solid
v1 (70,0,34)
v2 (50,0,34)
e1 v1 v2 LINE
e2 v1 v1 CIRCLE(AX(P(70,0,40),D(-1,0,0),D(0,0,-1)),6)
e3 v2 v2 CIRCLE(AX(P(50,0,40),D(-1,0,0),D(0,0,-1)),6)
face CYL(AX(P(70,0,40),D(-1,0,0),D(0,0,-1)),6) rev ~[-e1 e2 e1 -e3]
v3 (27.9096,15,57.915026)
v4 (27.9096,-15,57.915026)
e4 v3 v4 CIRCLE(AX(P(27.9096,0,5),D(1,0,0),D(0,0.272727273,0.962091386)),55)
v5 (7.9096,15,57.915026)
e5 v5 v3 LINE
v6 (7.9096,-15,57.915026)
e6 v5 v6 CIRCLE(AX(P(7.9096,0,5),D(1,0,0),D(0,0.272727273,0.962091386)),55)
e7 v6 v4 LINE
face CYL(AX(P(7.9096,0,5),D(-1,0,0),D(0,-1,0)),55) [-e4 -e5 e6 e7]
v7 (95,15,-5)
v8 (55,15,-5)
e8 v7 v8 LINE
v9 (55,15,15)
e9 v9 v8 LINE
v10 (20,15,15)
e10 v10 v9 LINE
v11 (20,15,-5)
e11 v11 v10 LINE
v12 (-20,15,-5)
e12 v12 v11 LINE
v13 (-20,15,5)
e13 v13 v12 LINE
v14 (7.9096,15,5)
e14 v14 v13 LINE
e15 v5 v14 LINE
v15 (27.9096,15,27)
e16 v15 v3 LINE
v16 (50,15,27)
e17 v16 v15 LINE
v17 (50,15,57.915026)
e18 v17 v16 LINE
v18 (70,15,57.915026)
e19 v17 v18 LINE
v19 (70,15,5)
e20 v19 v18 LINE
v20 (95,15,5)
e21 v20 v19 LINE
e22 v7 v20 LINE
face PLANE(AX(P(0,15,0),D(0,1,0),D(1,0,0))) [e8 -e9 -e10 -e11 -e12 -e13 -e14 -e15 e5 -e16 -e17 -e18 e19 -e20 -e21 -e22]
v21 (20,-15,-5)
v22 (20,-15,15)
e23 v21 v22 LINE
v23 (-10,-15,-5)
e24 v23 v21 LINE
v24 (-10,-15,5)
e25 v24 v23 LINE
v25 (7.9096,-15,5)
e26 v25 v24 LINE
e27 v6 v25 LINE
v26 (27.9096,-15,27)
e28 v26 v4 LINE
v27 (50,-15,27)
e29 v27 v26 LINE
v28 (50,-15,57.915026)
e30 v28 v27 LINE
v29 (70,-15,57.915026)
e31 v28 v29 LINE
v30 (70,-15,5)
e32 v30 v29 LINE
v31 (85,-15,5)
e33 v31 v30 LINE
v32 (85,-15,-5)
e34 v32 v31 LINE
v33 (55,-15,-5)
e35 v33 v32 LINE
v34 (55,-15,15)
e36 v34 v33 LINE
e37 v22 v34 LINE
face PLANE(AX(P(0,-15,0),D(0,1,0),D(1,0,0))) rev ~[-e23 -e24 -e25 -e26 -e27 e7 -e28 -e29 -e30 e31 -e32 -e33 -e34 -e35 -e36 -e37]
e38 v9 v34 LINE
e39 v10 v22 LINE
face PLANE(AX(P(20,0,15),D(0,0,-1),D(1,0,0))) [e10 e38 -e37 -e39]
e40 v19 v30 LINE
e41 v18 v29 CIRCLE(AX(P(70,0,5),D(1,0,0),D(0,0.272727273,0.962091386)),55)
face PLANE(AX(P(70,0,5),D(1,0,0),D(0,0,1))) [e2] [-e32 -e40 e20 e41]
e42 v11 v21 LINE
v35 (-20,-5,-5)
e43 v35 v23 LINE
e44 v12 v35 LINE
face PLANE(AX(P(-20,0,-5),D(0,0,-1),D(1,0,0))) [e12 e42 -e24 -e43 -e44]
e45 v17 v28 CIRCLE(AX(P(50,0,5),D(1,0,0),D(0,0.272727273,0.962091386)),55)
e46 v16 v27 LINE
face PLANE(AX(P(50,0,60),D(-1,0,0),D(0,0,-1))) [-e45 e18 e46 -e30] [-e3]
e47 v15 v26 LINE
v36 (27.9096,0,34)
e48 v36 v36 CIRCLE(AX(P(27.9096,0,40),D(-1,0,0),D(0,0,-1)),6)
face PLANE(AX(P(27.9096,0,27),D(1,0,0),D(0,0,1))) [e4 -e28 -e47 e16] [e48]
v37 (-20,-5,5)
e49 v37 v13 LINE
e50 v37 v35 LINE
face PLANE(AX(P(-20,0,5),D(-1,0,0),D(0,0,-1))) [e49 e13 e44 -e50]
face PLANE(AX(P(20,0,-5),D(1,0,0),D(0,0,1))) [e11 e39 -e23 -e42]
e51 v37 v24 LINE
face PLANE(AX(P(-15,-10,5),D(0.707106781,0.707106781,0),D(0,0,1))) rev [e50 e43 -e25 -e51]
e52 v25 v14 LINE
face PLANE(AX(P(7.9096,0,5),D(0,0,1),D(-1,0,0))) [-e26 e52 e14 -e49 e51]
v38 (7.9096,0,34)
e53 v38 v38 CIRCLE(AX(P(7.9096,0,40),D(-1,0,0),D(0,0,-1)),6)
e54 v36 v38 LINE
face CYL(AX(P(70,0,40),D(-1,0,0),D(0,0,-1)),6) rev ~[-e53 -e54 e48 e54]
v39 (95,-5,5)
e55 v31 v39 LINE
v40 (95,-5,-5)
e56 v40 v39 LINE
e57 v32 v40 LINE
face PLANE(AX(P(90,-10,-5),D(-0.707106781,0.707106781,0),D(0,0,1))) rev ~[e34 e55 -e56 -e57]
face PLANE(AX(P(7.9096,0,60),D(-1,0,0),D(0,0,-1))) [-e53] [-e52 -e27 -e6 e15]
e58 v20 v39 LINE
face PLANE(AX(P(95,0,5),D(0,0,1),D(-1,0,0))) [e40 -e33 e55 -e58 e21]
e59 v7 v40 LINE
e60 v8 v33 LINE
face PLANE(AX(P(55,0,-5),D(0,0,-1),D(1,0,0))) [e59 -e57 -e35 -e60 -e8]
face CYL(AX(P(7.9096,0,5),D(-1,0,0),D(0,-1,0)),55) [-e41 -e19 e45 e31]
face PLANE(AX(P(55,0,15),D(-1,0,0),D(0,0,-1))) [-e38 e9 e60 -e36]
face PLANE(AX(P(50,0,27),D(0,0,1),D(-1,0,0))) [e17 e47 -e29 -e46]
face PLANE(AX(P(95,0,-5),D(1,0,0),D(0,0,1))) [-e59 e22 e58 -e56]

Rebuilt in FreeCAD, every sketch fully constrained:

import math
import FreeCAD as App
import Part
import Sketcher
Q = App.Units.Quantity


def edges_at(feature, points):
    """Names of the edges that pass closest to the given points."""
    edges = feature.Shape.Edges
    near = lambda p: min(range(len(edges)), key=lambda i: edges[i].distToShape(Part.Vertex(*p))[0])
    return sorted({f"Edge{near(p) + 1}" for p in points})


def add_polygon(sketch, points):
    """Adds a closed chain of lines whose ends are joined by coincident constraints."""
    first, n = sketch.GeometryCount, len(points)
    for a, b in zip(points, points[1:] + points[:1]):
        sketch.addGeometry(Part.LineSegment(App.Vector(*a, 0), App.Vector(*b, 0)), False)
    for i in range(n):
        sketch.addConstraint(Sketcher.Constraint("Coincident", first + i, 2, first + (i + 1) % n, 1))

doc = App.newDocument("Part")
params = doc.addObject("Spreadsheet::Sheet", "Params")
for row, (alias, value) in enumerate([
    ("sketch1_width", "20 mm"),
    ("sketch1_width2", "25 mm"),
    ("sketch1_width3", "35 mm"),
    ("sketch1_height", "10 mm"),
    ("sketch1_height2", "55 mm"),
    ("pad1_length", "30 mm"),
    ("chamfer_size", "10 mm"),
    ("sketch2_diameter", "12 mm"),
    ("hole_diameter", "12 mm"),
    ("hole_depth", "65 mm"),
    ("sketch3_radius", "55 mm"),
    ("sketch3_width", "15 mm"),
    ("pocket1_length", "12311 mm"),
], start=1):
    params.set(f"A{row}", alias)
    params.set(f"B{row}", "=" + value)
    params.setAlias(f"B{row}", alias)

body = doc.addObject("PartDesign::Body", "Body")

# Sketch on XZ plane
sketch1 = body.newObject("Sketcher::SketchObject", "Sketch")
sketch1.AttachmentSupport = (doc.getObject("XZ_Plane"), [""])
sketch1.MapMode = "FlatFace"
add_polygon(sketch1, [(-20, -5), (-20, 5), (8, 5), (8, 60), (28, 60), (28, 27), (50, 27), (50, 60), (70, 60), (70, 5), (95, 5), (95, -5), (55, -5), (55, 15), (20, 15), (20, -5)])  # lines 0-15
sketch1.addConstraint([
    Sketcher.Constraint("Vertical", 0),
    Sketcher.Constraint("Horizontal", 1),
    Sketcher.Constraint("Vertical", 2),
    Sketcher.Constraint("Horizontal", 3),
    Sketcher.Constraint("Vertical", 4),
    Sketcher.Constraint("Horizontal", 5),
    Sketcher.Constraint("Vertical", 6),
    Sketcher.Constraint("Horizontal", 7),
    Sketcher.Constraint("Vertical", 8),
    Sketcher.Constraint("Horizontal", 9),
    Sketcher.Constraint("Vertical", 10),
    Sketcher.Constraint("Horizontal", 11),
    Sketcher.Constraint("Vertical", 12),
    Sketcher.Constraint("Horizontal", 13),
    Sketcher.Constraint("Vertical", 14),
    Sketcher.Constraint("Horizontal", 15),
    Sketcher.Constraint("Symmetric", 0, 2, 14, 2, -1, 1),
    Sketcher.Constraint("Horizontal", 3, 2, 6, 2),
    Sketcher.Constraint("Horizontal", 1, 2, 8, 2),
    Sketcher.Constraint("Horizontal", 11, 2, 14, 2),
    Sketcher.Constraint("Equal", 3, 7),
    Sketcher.Constraint("Equal", 11, 15),
    Sketcher.Constraint("Equal", 7, 12),
    Sketcher.Constraint("DistanceX", 3, 1, 3, 2, Q("20 mm")),
    Sketcher.Constraint("DistanceX", 0, 2, -1, 1, Q("20 mm")),
    Sketcher.Constraint("DistanceX", 9, 1, 9, 2, Q("25 mm")),
    Sketcher.Constraint("DistanceX", 13, 2, 13, 1, Q("35 mm")),
    Sketcher.Constraint("DistanceY", 0, 1, 0, 2, Q("10 mm")),
    Sketcher.Constraint("DistanceY", 2, 1, 2, 2, Q("55 mm")),
    Sketcher.Constraint("DistanceY", 4, 2, 4, 1, Q("33 mm")),
    Sketcher.Constraint("DistanceX", 1, 1, 1, 2, Q("27.9096 mm")),
])
sketch1.setExpression("Constraints[39]", "Params.sketch1_width")
sketch1.setExpression("Constraints[41]", "Params.sketch1_width2")
sketch1.setExpression("Constraints[42]", "Params.sketch1_width3")
sketch1.setExpression("Constraints[43]", "Params.sketch1_height")
sketch1.setExpression("Constraints[44]", "Params.sketch1_height2")
pad1 = body.newObject("PartDesign::Pad", "Pad")
pad1.Profile = sketch1
pad1.setExpression("Length", "Params.pad1_length")
pad1.Midplane = True
doc.recompute()

chamfer = body.newObject("PartDesign::Chamfer", "Chamfer")
chamfer.Base = (pad1, edges_at(pad1, [(-20, -15, 0), (95, -15, 0)]))
chamfer.setExpression("Size", "Params.chamfer_size")

# Sketch on YZ plane
sketch2 = body.newObject("Sketcher::SketchObject", "Sketch001")
sketch2.AttachmentSupport = (doc.getObject("YZ_Plane"), [""])
sketch2.MapMode = "FlatFace"
sketch2.AttachmentOffset = App.Placement(App.Vector(0, 0, 70), App.Rotation())
sketch2.addGeometry(Part.Circle(App.Vector(0, 40, 0), App.Vector(0, 0, 1), 6), False)
sketch2.addConstraint([
    Sketcher.Constraint("PointOnObject", 0, 3, -2),
    Sketcher.Constraint("Diameter", 0, Q("12 mm")),
    Sketcher.Constraint("DistanceY", -1, 1, 0, 3, Q("40 mm")),
])
sketch2.setExpression("Constraints[1]", "Params.sketch2_diameter")
doc.recompute()
hole = body.newObject("PartDesign::Hole", "Hole")
hole.Profile = sketch2
hole.ThreadType = "None"
hole.setExpression("Diameter", "Params.hole_diameter")
hole.DepthType = "Dimension"
hole.setExpression("Depth", "Params.hole_depth")
hole.DrillPoint = "Angled"
hole.DrillPointAngle = 118

# Sketch on YZ plane
sketch3 = body.newObject("Sketcher::SketchObject", "Sketch002")
sketch3.AttachmentSupport = (doc.getObject("YZ_Plane"), [""])
sketch3.MapMode = "FlatFace"
sketch3.AttachmentOffset = App.Placement(App.Vector(0, 0, 7.9096), App.Rotation())
sketch3.addGeometry([
    Part.LineSegment(App.Vector(-15, 57.9, 0), App.Vector(-15, 60, 0)),  # 0
    Part.LineSegment(App.Vector(-15, 60, 0), App.Vector(0, 60, 0)),  # 1
    Part.ArcOfCircle(Part.Circle(App.Vector(0, 5, 0), App.Vector(0, 0, 1), 55), math.radians(90), math.radians(105.83)),  # 2
    Part.ArcOfCircle(Part.Circle(App.Vector(0, 5, 0), App.Vector(0, 0, 1), 55), math.radians(74.17), math.radians(90)),  # 3
    Part.LineSegment(App.Vector(0, 60, 0), App.Vector(15, 60, 0)),  # 4
    Part.LineSegment(App.Vector(15, 60, 0), App.Vector(15, 57.9, 0)),  # 5
], False)
sketch3.addConstraint([
    Sketcher.Constraint("Coincident", 0, 2, 1, 1),
    Sketcher.Constraint("Tangent", 1, 2, 2, 1),
    Sketcher.Constraint("Coincident", 2, 2, 0, 1),
    Sketcher.Constraint("Tangent", 3, 2, 4, 1),
    Sketcher.Constraint("Coincident", 4, 2, 5, 1),
    Sketcher.Constraint("Coincident", 5, 2, 3, 1),
    Sketcher.Constraint("Vertical", 0),
    Sketcher.Constraint("Horizontal", 1),
    Sketcher.Constraint("Horizontal", 4),
    Sketcher.Constraint("Vertical", 5),
    Sketcher.Constraint("Coincident", 3, 3, 2, 3),
    Sketcher.Constraint("Equal", 2, 3),
    Sketcher.Constraint("Symmetric", 2, 2, 5, 2, -2),
    Sketcher.Constraint("Radius", 2, Q("55 mm")),
    Sketcher.Constraint("DistanceX", 1, 1, 1, 2, Q("15 mm")),
    Sketcher.Constraint("DistanceY", -1, 1, 2, 3, Q("5 mm")),
])
sketch3.setExpression("Constraints[13]", "Params.sketch3_radius")
sketch3.setExpression("Constraints[14]", "Params.sketch3_width")
pocket1 = body.newObject("PartDesign::Pocket", "Pocket")
pocket1.Profile = sketch3
pocket1.setExpression("Length", "Params.pocket1_length")
pocket1.Reversed = True

doc.recompute()
